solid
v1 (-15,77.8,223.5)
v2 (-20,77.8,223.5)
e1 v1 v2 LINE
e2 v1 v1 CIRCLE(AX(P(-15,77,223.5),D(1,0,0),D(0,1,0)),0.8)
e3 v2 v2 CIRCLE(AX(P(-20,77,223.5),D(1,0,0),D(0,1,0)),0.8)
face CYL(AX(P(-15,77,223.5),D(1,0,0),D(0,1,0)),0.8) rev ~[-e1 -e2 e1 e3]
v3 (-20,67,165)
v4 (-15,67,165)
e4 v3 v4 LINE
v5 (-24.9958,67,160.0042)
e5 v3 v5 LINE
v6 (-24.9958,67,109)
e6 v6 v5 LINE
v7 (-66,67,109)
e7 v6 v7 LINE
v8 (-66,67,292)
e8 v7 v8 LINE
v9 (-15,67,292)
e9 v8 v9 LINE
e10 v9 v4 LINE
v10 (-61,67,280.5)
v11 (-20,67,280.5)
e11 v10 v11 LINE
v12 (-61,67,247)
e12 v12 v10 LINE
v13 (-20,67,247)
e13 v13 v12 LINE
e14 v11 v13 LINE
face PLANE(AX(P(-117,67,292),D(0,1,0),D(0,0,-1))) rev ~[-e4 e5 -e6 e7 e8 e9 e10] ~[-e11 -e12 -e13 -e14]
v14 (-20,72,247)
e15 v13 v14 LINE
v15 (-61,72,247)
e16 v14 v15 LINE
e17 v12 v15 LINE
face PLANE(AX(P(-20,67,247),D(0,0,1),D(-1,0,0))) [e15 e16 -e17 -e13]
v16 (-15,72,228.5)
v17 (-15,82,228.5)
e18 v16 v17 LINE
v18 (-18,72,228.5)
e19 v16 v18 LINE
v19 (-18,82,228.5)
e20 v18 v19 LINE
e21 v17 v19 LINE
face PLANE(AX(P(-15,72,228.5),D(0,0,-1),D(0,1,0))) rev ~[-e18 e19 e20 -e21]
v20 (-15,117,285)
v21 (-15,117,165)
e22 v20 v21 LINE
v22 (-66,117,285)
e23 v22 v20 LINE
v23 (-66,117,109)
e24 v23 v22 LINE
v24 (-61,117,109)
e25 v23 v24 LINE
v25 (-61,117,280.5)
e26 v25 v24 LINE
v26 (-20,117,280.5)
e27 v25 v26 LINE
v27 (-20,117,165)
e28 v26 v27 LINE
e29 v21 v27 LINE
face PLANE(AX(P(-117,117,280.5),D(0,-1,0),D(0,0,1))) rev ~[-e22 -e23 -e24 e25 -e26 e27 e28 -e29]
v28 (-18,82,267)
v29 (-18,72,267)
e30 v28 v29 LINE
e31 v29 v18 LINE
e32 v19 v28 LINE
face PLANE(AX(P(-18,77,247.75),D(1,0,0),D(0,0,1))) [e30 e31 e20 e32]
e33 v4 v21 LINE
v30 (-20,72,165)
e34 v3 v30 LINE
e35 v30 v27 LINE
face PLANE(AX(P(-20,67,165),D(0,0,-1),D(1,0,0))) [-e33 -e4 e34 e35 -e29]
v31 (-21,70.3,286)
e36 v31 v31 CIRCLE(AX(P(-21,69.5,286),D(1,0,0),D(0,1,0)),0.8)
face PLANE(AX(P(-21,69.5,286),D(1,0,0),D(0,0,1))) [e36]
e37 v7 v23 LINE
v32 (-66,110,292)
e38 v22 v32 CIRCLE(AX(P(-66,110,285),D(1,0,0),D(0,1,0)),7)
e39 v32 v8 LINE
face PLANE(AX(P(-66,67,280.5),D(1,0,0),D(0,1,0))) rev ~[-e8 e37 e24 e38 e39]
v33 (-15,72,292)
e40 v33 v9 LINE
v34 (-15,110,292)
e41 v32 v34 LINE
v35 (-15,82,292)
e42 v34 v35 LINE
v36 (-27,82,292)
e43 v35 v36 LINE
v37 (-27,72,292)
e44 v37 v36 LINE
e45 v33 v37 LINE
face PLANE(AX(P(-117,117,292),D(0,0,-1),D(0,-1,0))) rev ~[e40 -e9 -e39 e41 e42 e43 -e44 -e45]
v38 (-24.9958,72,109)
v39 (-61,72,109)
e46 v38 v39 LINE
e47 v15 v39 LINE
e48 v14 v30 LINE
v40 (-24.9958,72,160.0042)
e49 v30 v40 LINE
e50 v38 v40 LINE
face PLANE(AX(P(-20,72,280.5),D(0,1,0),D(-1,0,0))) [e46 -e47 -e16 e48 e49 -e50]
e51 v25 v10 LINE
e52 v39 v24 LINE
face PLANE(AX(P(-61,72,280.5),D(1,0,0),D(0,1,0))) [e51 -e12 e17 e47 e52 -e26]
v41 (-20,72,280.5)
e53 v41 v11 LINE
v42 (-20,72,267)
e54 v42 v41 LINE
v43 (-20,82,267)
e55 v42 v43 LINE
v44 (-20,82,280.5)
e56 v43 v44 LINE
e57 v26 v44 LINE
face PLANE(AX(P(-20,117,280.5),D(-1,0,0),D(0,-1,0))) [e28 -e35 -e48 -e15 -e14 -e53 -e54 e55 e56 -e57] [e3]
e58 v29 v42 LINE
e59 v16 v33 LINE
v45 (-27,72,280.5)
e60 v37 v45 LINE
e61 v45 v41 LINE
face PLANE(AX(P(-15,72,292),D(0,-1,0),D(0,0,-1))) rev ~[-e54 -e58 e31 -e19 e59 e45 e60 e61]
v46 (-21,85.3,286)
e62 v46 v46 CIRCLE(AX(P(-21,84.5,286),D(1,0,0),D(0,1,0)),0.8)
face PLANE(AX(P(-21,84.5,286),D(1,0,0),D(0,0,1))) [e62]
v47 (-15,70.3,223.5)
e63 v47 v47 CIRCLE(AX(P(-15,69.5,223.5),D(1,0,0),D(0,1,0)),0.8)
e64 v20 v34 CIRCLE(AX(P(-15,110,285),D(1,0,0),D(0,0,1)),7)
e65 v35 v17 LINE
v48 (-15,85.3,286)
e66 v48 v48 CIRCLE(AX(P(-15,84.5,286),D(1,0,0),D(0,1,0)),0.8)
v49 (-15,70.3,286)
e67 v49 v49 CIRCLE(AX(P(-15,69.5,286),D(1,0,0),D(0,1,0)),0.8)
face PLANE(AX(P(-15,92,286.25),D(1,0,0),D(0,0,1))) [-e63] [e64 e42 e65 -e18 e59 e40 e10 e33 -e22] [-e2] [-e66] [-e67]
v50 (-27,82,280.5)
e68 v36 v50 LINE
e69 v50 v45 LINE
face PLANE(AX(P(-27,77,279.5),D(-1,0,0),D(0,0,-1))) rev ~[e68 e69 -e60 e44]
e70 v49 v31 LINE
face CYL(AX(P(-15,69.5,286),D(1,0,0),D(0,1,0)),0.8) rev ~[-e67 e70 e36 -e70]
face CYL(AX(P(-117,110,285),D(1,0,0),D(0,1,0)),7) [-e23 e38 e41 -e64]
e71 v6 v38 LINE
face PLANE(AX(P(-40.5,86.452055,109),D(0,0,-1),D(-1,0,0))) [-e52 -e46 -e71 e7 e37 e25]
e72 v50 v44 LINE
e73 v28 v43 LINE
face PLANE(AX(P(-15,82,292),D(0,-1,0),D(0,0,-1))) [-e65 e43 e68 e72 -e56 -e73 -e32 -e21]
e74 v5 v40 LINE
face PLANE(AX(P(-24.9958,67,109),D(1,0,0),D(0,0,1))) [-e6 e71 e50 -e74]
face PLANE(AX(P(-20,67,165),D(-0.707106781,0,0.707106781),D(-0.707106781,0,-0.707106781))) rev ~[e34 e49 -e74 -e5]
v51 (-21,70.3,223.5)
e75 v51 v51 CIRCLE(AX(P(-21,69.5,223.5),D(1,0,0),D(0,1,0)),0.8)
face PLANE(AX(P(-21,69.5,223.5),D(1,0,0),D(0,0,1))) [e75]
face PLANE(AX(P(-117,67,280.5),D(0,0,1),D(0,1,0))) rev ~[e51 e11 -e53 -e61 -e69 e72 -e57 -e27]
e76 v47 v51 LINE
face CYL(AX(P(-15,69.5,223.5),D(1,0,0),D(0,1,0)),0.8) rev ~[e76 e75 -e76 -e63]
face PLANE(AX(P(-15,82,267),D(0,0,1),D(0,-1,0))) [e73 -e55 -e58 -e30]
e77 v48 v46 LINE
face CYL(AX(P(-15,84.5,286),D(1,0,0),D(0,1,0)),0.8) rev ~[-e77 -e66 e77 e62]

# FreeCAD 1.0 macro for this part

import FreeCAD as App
import Part
import Sketcher
from FreeCAD import Vector
Q = App.Units.Quantity


def edges_at(feature, points):
    """Names of the edges that pass closest to the given points."""
    edges = feature.Shape.Edges
    near = lambda p: min(range(len(edges)), key=lambda i: edges[i].distToShape(Part.Vertex(*p))[0])
    return sorted({f"Edge{near(p) + 1}" for p in points})


def add_polygon(sketch, points):
    """Adds a closed chain of lines whose ends are joined by coincident constraints."""
    first, n = sketch.GeometryCount, len(points)
    for a, b in zip(points, points[1:] + points[:1]):
        sketch.addGeometry(Part.LineSegment(App.Vector(*a, 0), App.Vector(*b, 0)), False)
    for i in range(n):
        sketch.addConstraint(Sketcher.Constraint("Coincident", first + i, 2, first + (i + 1) % n, 1))

doc = App.newDocument("Part")
params = doc.addObject("Spreadsheet::Sheet", "Params")
for row, (alias, value) in enumerate([
    ("sketch1_width", "50 mm"),
    ("sketch1_height", "11.5 mm"),
    ("pad1_length", "102 mm"),
    ("fillet_radius", "7 mm"),
    ("sketch2_width", "51 mm"),
    ("sketch2_width2", "5 mm"),
    ("sketch2_height", "50 mm"),
    ("sketch2_height2", "45 mm"),
    ("pad2_length", "171.5 mm"),
    ("sketch3_width", "41 mm"),
    ("sketch3_height", "33.5 mm"),
    ("sketch4_width", "10 mm"),
    ("sketch4_height", "25 mm"),
    ("pocket2_length", "12 mm"),
    ("sketch5_width", "10 mm"),
    ("sketch5_height", "38.5 mm"),
    ("pocket3_length", "3 mm"),
    ("sketch6_diameter", "1.6 mm"),
    ("sketch7_diameter", "1.6 mm"),
    ("pocket5_length", "6 mm"),
    ("sketch8_width", "5 mm"),
    ("sketch8_height", "56 mm"),
    ("sketch9_width", "50 mm"),
    ("sketch9_height", "11.5 mm"),
    ("pocket7_length", "51 mm"),
], start=1):
    params.set(f"A{row}", alias)
    params.set(f"B{row}", "=" + value)
    params.setAlias(f"B{row}", alias)

body = doc.addObject("PartDesign::Body", "Body")

# Sketch on YZ plane
sketch1 = body.newObject("Sketcher::SketchObject", "Sketch")
sketch1.AttachmentSupport = (doc.getObject("YZ_Plane"), [""])
sketch1.MapMode = "FlatFace"
sketch1.AttachmentOffset = App.Placement(Vector(0, 0, -117), App.Rotation())
add_polygon(sketch1, [(67, 280), (117, 280), (117, 292), (67, 292)])  # lines 0-3
sketch1.addConstraint([
    Sketcher.Constraint("Horizontal", 0),
    Sketcher.Constraint("Vertical", 1),
    Sketcher.Constraint("Horizontal", 2),
    Sketcher.Constraint("Vertical", 3),
    Sketcher.Constraint("DistanceX", 0, 1, 0, 2, Q("50 mm")),
    Sketcher.Constraint("DistanceY", 1, 1, 1, 2, Q("11.5 mm")),
    Sketcher.Constraint("DistanceX", -1, 1, 0, 2, Q("117 mm")),
    Sketcher.Constraint("DistanceY", -1, 1, 1, 2, Q("292 mm")),
])
sketch1.setExpression("Constraints[8]", "Params.sketch1_width")
sketch1.setExpression("Constraints[9]", "Params.sketch1_height")
pad1 = body.newObject("PartDesign::Pad", "Pad")
pad1.Profile = sketch1
pad1.setExpression("Length", "Params.pad1_length")
doc.recompute()

fillet = body.newObject("PartDesign::Fillet", "Fillet")
fillet.Base = (pad1, edges_at(pad1, [(-66, 117, 292)]))
fillet.setExpression("Radius", "Params.fillet_radius")

# Sketch on XY plane
sketch2 = body.newObject("Sketcher::SketchObject", "Sketch001")
sketch2.AttachmentSupport = (doc.getObject("XY_Plane"), [""])
sketch2.MapMode = "FlatFace"
sketch2.AttachmentOffset = App.Placement(Vector(0, 0, 280.5), App.Rotation())
add_polygon(sketch2, [(-15, 117), (-15, 67), (-66, 67), (-66, 117), (-61, 117), (-61, 72), (-20, 72), (-20, 117)])  # lines 0-7
sketch2.addConstraint([
    Sketcher.Constraint("Vertical", 0),
    Sketcher.Constraint("Horizontal", 1),
    Sketcher.Constraint("Vertical", 2),
    Sketcher.Constraint("Horizontal", 3),
    Sketcher.Constraint("Vertical", 4),
    Sketcher.Constraint("Horizontal", 5),
    Sketcher.Constraint("Vertical", 6),
    Sketcher.Constraint("Horizontal", 7),
    Sketcher.Constraint("Horizontal", 3, 2, 6, 2),
    Sketcher.Constraint("Equal", 3, 7),
    Sketcher.Constraint("DistanceX", 1, 2, 1, 1, Q("51 mm")),
    Sketcher.Constraint("DistanceX", 3, 1, 3, 2, Q("5 mm")),
    Sketcher.Constraint("DistanceY", 0, 2, 0, 1, Q("50 mm")),
    Sketcher.Constraint("DistanceY", 4, 2, 4, 1, Q("45 mm")),
    Sketcher.Constraint("DistanceX", 0, 2, -1, 1, Q("15 mm")),
    Sketcher.Constraint("DistanceY", -1, 1, 0, 2, Q("67 mm")),
])
sketch2.setExpression("Constraints[18]", "Params.sketch2_width")
sketch2.setExpression("Constraints[19]", "Params.sketch2_width2")
sketch2.setExpression("Constraints[20]", "Params.sketch2_height")
sketch2.setExpression("Constraints[21]", "Params.sketch2_height2")
pad2 = body.newObject("PartDesign::Pad", "Pad001")
pad2.Profile = sketch2
pad2.setExpression("Length", "Params.pad2_length")
pad2.Reversed = True

# Sketch on XZ plane
sketch3 = body.newObject("Sketcher::SketchObject", "Sketch002")
sketch3.AttachmentSupport = (doc.getObject("XZ_Plane"), [""])
sketch3.MapMode = "FlatFace"
sketch3.AttachmentOffset = App.Placement(Vector(0, 0, -67), App.Rotation())
add_polygon(sketch3, [(-20, 280), (-61, 280), (-61, 247), (-20, 247)])  # lines 0-3
sketch3.addConstraint([
    Sketcher.Constraint("Horizontal", 0),
    Sketcher.Constraint("Vertical", 1),
    Sketcher.Constraint("Horizontal", 2),
    Sketcher.Constraint("Vertical", 3),
    Sketcher.Constraint("DistanceX", 0, 2, 0, 1, Q("41 mm")),
    Sketcher.Constraint("DistanceY", 1, 2, 1, 1, Q("33.5 mm")),
    Sketcher.Constraint("DistanceX", 0, 2, -1, 1, Q("61 mm")),
    Sketcher.Constraint("DistanceY", -1, 1, 1, 2, Q("247 mm")),
])
sketch3.setExpression("Constraints[8]", "Params.sketch3_width")
sketch3.setExpression("Constraints[9]", "Params.sketch3_height")
pocket1 = body.newObject("PartDesign::Pocket", "Pocket")
pocket1.Profile = sketch3
pocket1.Type = "UpToFirst"

# Sketch on YZ plane
sketch4 = body.newObject("Sketcher::SketchObject", "Sketch003")
sketch4.AttachmentSupport = (doc.getObject("YZ_Plane"), [""])
sketch4.MapMode = "FlatFace"
sketch4.AttachmentOffset = App.Placement(Vector(0, 0, -15), App.Rotation())
add_polygon(sketch4, [(82, 267), (82, 292), (72, 292), (72, 267)])  # lines 0-3
sketch4.addConstraint([
    Sketcher.Constraint("Vertical", 0),
    Sketcher.Constraint("Horizontal", 1),
    Sketcher.Constraint("Vertical", 2),
    Sketcher.Constraint("Horizontal", 3),
    Sketcher.Constraint("DistanceX", 1, 2, 1, 1, Q("10 mm")),
    Sketcher.Constraint("DistanceY", 0, 1, 0, 2, Q("25 mm")),
    Sketcher.Constraint("DistanceX", -1, 1, 0, 2, Q("82 mm")),
    Sketcher.Constraint("DistanceY", -1, 1, 0, 2, Q("292 mm")),
])
sketch4.setExpression("Constraints[8]", "Params.sketch4_width")
sketch4.setExpression("Constraints[9]", "Params.sketch4_height")
pocket2 = body.newObject("PartDesign::Pocket", "Pocket001")
pocket2.Profile = sketch4
pocket2.setExpression("Length", "Params.pocket2_length")

# Sketch on YZ plane
sketch5 = body.newObject("Sketcher::SketchObject", "Sketch004")
sketch5.AttachmentSupport = (doc.getObject("YZ_Plane"), [""])
sketch5.MapMode = "FlatFace"
sketch5.AttachmentOffset = App.Placement(Vector(0, 0, -15), App.Rotation())
add_polygon(sketch5, [(72, 228), (82, 228), (82, 267), (72, 267)])  # lines 0-3
sketch5.addConstraint([
    Sketcher.Constraint("Horizontal", 0),
    Sketcher.Constraint("Vertical", 1),
    Sketcher.Constraint("Horizontal", 2),
    Sketcher.Constraint("Vertical", 3),
    Sketcher.Constraint("DistanceX", 0, 1, 0, 2, Q("10 mm")),
    Sketcher.Constraint("DistanceY", 1, 1, 1, 2, Q("38.5 mm")),
    Sketcher.Constraint("DistanceX", -1, 1, 0, 2, Q("82 mm")),
    Sketcher.Constraint("DistanceY", -1, 1, 1, 2, Q("267 mm")),
])
sketch5.setExpression("Constraints[8]", "Params.sketch5_width")
sketch5.setExpression("Constraints[9]", "Params.sketch5_height")
pocket3 = body.newObject("PartDesign::Pocket", "Pocket002")
pocket3.Profile = sketch5
pocket3.setExpression("Length", "Params.pocket3_length")

# Sketch on YZ plane
sketch6 = body.newObject("Sketcher::SketchObject", "Sketch005")
sketch6.AttachmentSupport = (doc.getObject("YZ_Plane"), [""])
sketch6.MapMode = "FlatFace"
sketch6.AttachmentOffset = App.Placement(Vector(0, 0, -15), App.Rotation())
sketch6.addGeometry(Part.Circle(Vector(77, 223.5, 0), Vector(0, 0, 1), 0.8), False)
sketch6.addConstraint([
    Sketcher.Constraint("Diameter", 0, Q("1.6 mm")),
    Sketcher.Constraint("DistanceX", -1, 1, 0, 3, Q("77 mm")),
    Sketcher.Constraint("DistanceY", -1, 1, 0, 3, Q("223.5 mm")),
])
sketch6.setExpression("Constraints[0]", "Params.sketch6_diameter")
pocket4 = body.newObject("PartDesign::Pocket", "Pocket003")
pocket4.Profile = sketch6
pocket4.Type = "UpToFirst"

# Sketch on YZ plane
sketch7 = body.newObject("Sketcher::SketchObject", "Sketch006")
sketch7.AttachmentSupport = (doc.getObject("YZ_Plane"), [""])
sketch7.MapMode = "FlatFace"
sketch7.AttachmentOffset = App.Placement(Vector(0, 0, -15), App.Rotation())
sketch7.addGeometry([
    Part.Circle(Vector(69.5, 286, 0), Vector(0, 0, 1), 0.8),
    Part.Circle(Vector(84.5, 286, 0), Vector(0, 0, 1), 0.8),
    Part.Circle(Vector(69.5, 223.5, 0), Vector(0, 0, 1), 0.8),
], False)
sketch7.addConstraint([
    Sketcher.Constraint("Equal", 0, 1),
    Sketcher.Constraint("Equal", 1, 2),
    Sketcher.Constraint("Horizontal", 0, 3, 1, 3),
    Sketcher.Constraint("Vertical", 0, 3, 2, 3),
    Sketcher.Constraint("Diameter", 0, Q("1.6 mm")),
    Sketcher.Constraint("DistanceY", -1, 1, 0, 3, Q("286 mm")),
    Sketcher.Constraint("DistanceX", 0, 3, 1, 3, Q("15 mm")),
    Sketcher.Constraint("DistanceX", -1, 1, 0, 3, Q("69.5 mm")),
    Sketcher.Constraint("DistanceY", -1, 1, 2, 3, Q("223.5 mm")),
])
sketch7.setExpression("Constraints[4]", "Params.sketch7_diameter")
pocket5 = body.newObject("PartDesign::Pocket", "Pocket004")
pocket5.Profile = sketch7
pocket5.setExpression("Length", "Params.pocket5_length")

# Sketch on XZ plane
sketch8 = body.newObject("Sketcher::SketchObject", "Sketch007")
sketch8.AttachmentSupport = (doc.getObject("XZ_Plane"), [""])
sketch8.MapMode = "FlatFace"
sketch8.AttachmentOffset = App.Placement(Vector(0, 0, -67), App.Rotation())
add_polygon(sketch8, [(-15, 165), (-20, 165), (-25, 160), (-25, 109), (-15, 109)])  # lines 0-4
sketch8.addConstraint([
    Sketcher.Constraint("Horizontal", 0),
    Sketcher.Constraint("Vertical", 2),
    Sketcher.Constraint("Horizontal", 3),
    Sketcher.Constraint("Vertical", 4),
    Sketcher.Constraint("DistanceX", 0, 2, 0, 1, Q("5 mm")),
    Sketcher.Constraint("DistanceY", 4, 1, 4, 2, Q("56 mm")),
    Sketcher.Constraint("Angle", 1, Q("-135 deg")),
    Sketcher.Constraint("DistanceX", 0, 2, -1, 1, Q("20 mm")),
    Sketcher.Constraint("DistanceY", -1, 1, 0, 2, Q("165 mm")),
    Sketcher.Constraint("DistanceX", 3, 1, 3, 2, Q("9.9958 mm")),
])
sketch8.setExpression("Constraints[9]", "Params.sketch8_width")
sketch8.setExpression("Constraints[10]", "Params.sketch8_height")
pocket6 = body.newObject("PartDesign::Pocket", "Pocket005")
pocket6.Profile = sketch8
pocket6.Type = "UpToFirst"

# Sketch on YZ plane
sketch9 = body.newObject("Sketcher::SketchObject", "Sketch008")
sketch9.AttachmentSupport = (doc.getObject("YZ_Plane"), [""])
sketch9.MapMode = "FlatFace"
sketch9.AttachmentOffset = App.Placement(Vector(0, 0, -117), App.Rotation())
add_polygon(sketch9, [(117, 280), (117, 292), (67, 292), (67, 280)])  # lines 0-3
sketch9.addConstraint([
    Sketcher.Constraint("Vertical", 0),
    Sketcher.Constraint("Horizontal", 1),
    Sketcher.Constraint("Vertical", 2),
    Sketcher.Constraint("Horizontal", 3),
    Sketcher.Constraint("DistanceX", 1, 2, 1, 1, Q("50 mm")),
    Sketcher.Constraint("DistanceY", 0, 1, 0, 2, Q("11.5 mm")),
    Sketcher.Constraint("DistanceX", -1, 1, 0, 2, Q("117 mm")),
    Sketcher.Constraint("DistanceY", -1, 1, 0, 2, Q("292 mm")),
])
sketch9.setExpression("Constraints[8]", "Params.sketch9_width")
sketch9.setExpression("Constraints[9]", "Params.sketch9_height")
pocket7 = body.newObject("PartDesign::Pocket", "Pocket006")
pocket7.Profile = sketch9
pocket7.setExpression("Length", "Params.pocket7_length")
pocket7.Reversed = True

doc.recompute()
